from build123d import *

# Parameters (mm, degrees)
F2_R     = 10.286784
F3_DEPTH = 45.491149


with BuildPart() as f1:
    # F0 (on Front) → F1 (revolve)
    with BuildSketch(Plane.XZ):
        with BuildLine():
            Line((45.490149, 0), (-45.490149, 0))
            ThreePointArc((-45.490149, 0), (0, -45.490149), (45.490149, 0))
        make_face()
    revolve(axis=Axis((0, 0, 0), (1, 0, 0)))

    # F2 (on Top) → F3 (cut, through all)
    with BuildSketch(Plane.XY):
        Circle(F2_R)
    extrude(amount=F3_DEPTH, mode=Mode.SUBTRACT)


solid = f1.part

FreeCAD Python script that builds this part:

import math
import FreeCAD as App
import Part
import Sketcher
Q = App.Units.Quantity

doc = App.newDocument("Part")
params = doc.addObject("Spreadsheet::Sheet", "Params")
for row, (alias, value) in enumerate([
    ("revolution_angle", "360 deg"),
], start=1):
    params.set(f"A{row}", alias)
    params.set(f"B{row}", "=" + value)
    params.setAlias(f"B{row}", alias)

body = doc.addObject("PartDesign::Body", "Body")

sketch1 = body.newObject("Sketcher::SketchObject", "Sketch")
sketch1.AttachmentSupport = (doc.getObject("XZ_Plane"), [""])
sketch1.MapMode = "FlatFace"
sketch1.addGeometry([
    Part.LineSegment(App.Vector(45, 0, 0), App.Vector(-45, 0, 0)),
    Part.ArcOfCircle(Part.Circle(App.Vector(0, 0, 0), App.Vector(0, 0, 1), 45), math.radians(180), math.radians(360)),
], False)
sketch1.addConstraint([
    Sketcher.Constraint("Coincident", 0, 1, 1, 2),
    Sketcher.Constraint("Coincident", 1, 1, 0, 2),
    Sketcher.Constraint("Horizontal", 0),
    Sketcher.Constraint("Coincident", 1, 3, -1, 1),
    Sketcher.Constraint("PointOnObject", 0, 1, -1),
    Sketcher.Constraint("Radius", 1, Q("45.490149 mm")),
])
revolution = body.newObject("PartDesign::Revolution", "Revolution")
revolution.Profile = sketch1
revolution.ReferenceAxis = (sketch1, ["H_Axis"])
revolution.setExpression("Angle", "Params.revolution_angle")

sketch2 = body.newObject("Sketcher::SketchObject", "Sketch001")
sketch2.AttachmentSupport = (doc.getObject("XY_Plane"), [""])
sketch2.MapMode = "FlatFace"
sketch2.addGeometry(Part.Circle(App.Vector(0, 0, 0), App.Vector(0, 0, 1), 10), False)
sketch2.addConstraint([
    Sketcher.Constraint("Coincident", 0, 3, -1, 1),
    Sketcher.Constraint("Diameter", 0, Q("20.573568 mm")),
])
pocket1 = body.newObject("PartDesign::Pocket", "Pocket")
pocket1.Profile = sketch2
pocket1.Type = "ThroughAll"
pocket1.Reversed = True

doc.recompute()
